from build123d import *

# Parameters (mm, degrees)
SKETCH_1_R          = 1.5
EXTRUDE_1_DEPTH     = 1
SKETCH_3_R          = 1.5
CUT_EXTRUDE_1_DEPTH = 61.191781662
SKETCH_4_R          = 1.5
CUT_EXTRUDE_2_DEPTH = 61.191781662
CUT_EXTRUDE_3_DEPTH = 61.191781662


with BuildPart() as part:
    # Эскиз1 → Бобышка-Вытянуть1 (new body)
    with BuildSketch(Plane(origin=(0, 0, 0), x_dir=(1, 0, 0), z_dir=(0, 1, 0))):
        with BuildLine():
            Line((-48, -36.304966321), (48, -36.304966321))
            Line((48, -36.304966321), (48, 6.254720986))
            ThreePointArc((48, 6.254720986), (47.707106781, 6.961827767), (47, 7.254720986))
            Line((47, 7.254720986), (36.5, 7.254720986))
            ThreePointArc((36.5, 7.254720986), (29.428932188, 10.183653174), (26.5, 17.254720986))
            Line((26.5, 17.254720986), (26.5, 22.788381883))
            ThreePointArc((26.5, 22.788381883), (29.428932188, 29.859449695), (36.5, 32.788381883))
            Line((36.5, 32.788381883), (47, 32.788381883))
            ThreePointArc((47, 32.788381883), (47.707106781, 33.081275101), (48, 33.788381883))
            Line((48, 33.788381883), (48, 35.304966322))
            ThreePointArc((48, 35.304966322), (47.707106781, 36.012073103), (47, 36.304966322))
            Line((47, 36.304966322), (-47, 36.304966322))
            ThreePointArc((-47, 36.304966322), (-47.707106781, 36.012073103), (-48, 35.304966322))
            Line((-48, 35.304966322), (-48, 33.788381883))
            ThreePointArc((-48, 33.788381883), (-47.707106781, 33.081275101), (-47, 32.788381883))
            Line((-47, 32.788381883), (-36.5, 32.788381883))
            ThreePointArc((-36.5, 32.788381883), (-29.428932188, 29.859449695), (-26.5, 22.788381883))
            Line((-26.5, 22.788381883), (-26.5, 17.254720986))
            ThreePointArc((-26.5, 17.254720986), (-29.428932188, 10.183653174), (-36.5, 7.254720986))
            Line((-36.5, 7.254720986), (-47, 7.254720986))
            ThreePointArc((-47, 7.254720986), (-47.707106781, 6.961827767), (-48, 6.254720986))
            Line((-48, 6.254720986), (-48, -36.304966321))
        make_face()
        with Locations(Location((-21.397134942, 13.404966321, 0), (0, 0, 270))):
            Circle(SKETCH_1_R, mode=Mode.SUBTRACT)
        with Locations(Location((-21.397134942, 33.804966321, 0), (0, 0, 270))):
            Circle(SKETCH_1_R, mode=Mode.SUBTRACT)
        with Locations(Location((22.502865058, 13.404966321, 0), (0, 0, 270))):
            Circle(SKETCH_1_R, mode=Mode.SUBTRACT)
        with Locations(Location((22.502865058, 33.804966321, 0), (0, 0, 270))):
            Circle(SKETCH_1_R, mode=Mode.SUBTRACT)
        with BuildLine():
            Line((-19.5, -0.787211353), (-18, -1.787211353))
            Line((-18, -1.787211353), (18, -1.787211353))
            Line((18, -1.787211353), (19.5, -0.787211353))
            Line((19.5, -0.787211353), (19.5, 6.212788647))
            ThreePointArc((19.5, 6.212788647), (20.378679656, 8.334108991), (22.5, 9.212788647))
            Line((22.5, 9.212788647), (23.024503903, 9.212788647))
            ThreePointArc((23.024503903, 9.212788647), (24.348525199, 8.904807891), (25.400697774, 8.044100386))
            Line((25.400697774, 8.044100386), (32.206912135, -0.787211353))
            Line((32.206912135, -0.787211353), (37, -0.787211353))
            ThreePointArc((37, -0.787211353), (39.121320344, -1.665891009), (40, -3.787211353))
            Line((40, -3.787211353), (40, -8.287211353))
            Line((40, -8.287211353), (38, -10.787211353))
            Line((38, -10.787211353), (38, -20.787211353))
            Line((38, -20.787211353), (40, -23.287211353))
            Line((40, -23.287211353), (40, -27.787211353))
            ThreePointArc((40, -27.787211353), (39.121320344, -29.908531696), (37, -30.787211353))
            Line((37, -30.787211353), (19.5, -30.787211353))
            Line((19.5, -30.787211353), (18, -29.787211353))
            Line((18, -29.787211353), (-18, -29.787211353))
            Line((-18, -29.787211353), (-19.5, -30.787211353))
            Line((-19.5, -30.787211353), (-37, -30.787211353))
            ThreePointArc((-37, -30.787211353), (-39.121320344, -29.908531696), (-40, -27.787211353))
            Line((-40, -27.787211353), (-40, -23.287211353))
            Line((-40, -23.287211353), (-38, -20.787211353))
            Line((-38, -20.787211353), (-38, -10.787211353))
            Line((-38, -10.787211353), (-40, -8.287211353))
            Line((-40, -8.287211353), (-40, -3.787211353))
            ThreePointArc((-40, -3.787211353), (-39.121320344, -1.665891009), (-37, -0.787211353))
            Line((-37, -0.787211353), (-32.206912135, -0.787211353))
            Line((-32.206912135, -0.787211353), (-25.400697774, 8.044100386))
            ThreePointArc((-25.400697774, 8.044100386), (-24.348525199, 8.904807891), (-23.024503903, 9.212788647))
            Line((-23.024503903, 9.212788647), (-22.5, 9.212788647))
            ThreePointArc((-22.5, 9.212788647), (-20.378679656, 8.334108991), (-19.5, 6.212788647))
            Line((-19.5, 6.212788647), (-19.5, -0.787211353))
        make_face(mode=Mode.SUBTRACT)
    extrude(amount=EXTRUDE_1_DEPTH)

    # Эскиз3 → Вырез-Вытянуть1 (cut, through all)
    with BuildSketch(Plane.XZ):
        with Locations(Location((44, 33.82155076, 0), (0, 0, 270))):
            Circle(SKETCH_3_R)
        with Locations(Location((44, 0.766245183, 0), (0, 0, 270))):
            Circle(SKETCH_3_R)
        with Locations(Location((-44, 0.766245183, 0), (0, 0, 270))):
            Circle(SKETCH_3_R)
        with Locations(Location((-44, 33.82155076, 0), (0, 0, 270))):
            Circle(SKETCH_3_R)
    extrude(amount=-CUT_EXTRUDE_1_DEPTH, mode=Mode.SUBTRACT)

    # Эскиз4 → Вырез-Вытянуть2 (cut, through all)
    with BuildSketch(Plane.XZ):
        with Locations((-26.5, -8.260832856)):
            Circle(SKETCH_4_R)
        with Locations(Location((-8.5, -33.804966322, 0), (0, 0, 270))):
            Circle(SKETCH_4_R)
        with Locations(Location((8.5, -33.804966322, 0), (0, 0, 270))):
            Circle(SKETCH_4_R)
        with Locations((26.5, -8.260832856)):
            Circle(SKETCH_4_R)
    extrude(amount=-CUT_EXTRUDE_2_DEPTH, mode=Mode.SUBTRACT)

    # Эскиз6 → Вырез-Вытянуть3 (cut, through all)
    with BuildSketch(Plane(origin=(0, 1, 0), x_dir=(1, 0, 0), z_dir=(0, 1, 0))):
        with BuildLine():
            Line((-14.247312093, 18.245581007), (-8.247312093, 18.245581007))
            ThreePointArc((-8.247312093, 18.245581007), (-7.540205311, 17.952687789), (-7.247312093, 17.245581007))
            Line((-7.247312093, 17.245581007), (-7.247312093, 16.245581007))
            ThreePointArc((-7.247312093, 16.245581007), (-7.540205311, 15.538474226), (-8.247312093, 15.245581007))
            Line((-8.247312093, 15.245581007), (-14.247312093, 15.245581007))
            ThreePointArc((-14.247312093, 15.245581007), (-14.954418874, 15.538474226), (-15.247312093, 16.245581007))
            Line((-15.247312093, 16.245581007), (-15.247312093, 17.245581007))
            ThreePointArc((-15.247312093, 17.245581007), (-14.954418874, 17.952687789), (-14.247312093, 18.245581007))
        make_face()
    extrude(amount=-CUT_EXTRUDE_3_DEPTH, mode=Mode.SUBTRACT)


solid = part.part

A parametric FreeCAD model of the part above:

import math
import FreeCAD as App
import Part
import Sketcher
from FreeCAD import Vector
Q = App.Units.Quantity

doc = App.newDocument("Part")
body = doc.addObject("PartDesign::Body", "Body")

# Sketch on XZ plane
sketch1 = doc.addObject("Sketcher::SketchObject", "Sketch")
body.addObject(sketch1)
sketch1.AttachmentSupport = (doc.XZ_Plane, [""])
sketch1.MapMode = "FlatFace"
sketch1.addGeometry(Part.LineSegment(Vector(-48, 36.3, 0), Vector(48, 36.3, 0)), False)
sketch1.addGeometry(Part.LineSegment(Vector(48, 36.3, 0), Vector(48, -6.3, 0)), False)
sketch1.addGeometry(Part.ArcOfCircle(Part.Circle(Vector(47, -6.3, 0), Vector(0, 0, 1), 1), math.radians(-90), math.radians(0)), False)
sketch1.addGeometry(Part.LineSegment(Vector(47, -7.3, 0), Vector(36.5, -7.3, 0)), False)
sketch1.addGeometry(Part.ArcOfCircle(Part.Circle(Vector(36.5, -17.3, 0), Vector(0, 0, 1), 10), math.radians(90), math.radians(180)), False)
sketch1.addGeometry(Part.LineSegment(Vector(26.5, -17.3, 0), Vector(26.5, -22.8, 0)), False)
sketch1.addGeometry(Part.ArcOfCircle(Part.Circle(Vector(36.5, -22.8, 0), Vector(0, 0, 1), 10), math.radians(180), math.radians(270)), False)
sketch1.addGeometry(Part.LineSegment(Vector(36.5, -32.8, 0), Vector(47, -32.8, 0)), False)
sketch1.addGeometry(Part.ArcOfCircle(Part.Circle(Vector(47, -33.8, 0), Vector(0, 0, 1), 1), math.radians(0), math.radians(90)), False)
sketch1.addGeometry(Part.LineSegment(Vector(48, -33.8, 0), Vector(48, -35.3, 0)), False)
sketch1.addGeometry(Part.ArcOfCircle(Part.Circle(Vector(47, -35.3, 0), Vector(0, 0, 1), 1), math.radians(-90), math.radians(0)), False)
sketch1.addGeometry(Part.LineSegment(Vector(47, -36.3, 0), Vector(-47, -36.3, 0)), False)
sketch1.addGeometry(Part.ArcOfCircle(Part.Circle(Vector(-47, -35.3, 0), Vector(0, 0, 1), 1), math.radians(-180), math.radians(-90)), False)
sketch1.addGeometry(Part.LineSegment(Vector(-48, -35.3, 0), Vector(-48, -33.8, 0)), False)
sketch1.addGeometry(Part.ArcOfCircle(Part.Circle(Vector(-47, -33.8, 0), Vector(0, 0, 1), 1), math.radians(90), math.radians(180)), False)
sketch1.addGeometry(Part.LineSegment(Vector(-47, -32.8, 0), Vector(-36.5, -32.8, 0)), False)
sketch1.addGeometry(Part.ArcOfCircle(Part.Circle(Vector(-36.5, -22.8, 0), Vector(0, 0, 1), 10), math.radians(-90), math.radians(0)), False)
sketch1.addGeometry(Part.LineSegment(Vector(-26.5, -22.8, 0), Vector(-26.5, -17.3, 0)), False)
sketch1.addGeometry(Part.ArcOfCircle(Part.Circle(Vector(-36.5, -17.3, 0), Vector(0, 0, 1), 10), math.radians(0), math.radians(90)), False)
sketch1.addGeometry(Part.LineSegment(Vector(-36.5, -7.3, 0), Vector(-47, -7.3, 0)), False)
sketch1.addGeometry(Part.ArcOfCircle(Part.Circle(Vector(-47, -6.3, 0), Vector(0, 0, 1), 1), math.radians(-180), math.radians(-90)), False)
sketch1.addGeometry(Part.LineSegment(Vector(-48, -6.3, 0), Vector(-48, 36.3, 0)), False)
sketch1.addGeometry(Part.LineSegment(Vector(-19.5, -6.2, 0), Vector(-19.5, 0.8, 0)), False)
sketch1.addGeometry(Part.LineSegment(Vector(-19.5, 0.8, 0), Vector(-18, 1.8, 0)), False)
sketch1.addGeometry(Part.LineSegment(Vector(-18, 1.8, 0), Vector(18, 1.8, 0)), False)
sketch1.addGeometry(Part.LineSegment(Vector(18, 1.8, 0), Vector(19.5, 0.8, 0)), False)
sketch1.addGeometry(Part.LineSegment(Vector(19.5, 0.8, 0), Vector(19.5, -6.2, 0)), False)
sketch1.addGeometry(Part.ArcOfCircle(Part.Circle(Vector(22.5, -6.2, 0), Vector(0, 0, 1), 3), math.radians(180), math.radians(270)), False)
sketch1.addGeometry(Part.LineSegment(Vector(22.5, -9.2, 0), Vector(23, -9.2, 0)), False)
sketch1.addGeometry(Part.ArcOfCircle(Part.Circle(Vector(23, -6.2, 0), Vector(0, 0, 1), 3), math.radians(-90), math.radians(-38)), False)
sketch1.addGeometry(Part.LineSegment(Vector(25.4, -8, 0), Vector(32.2, 0.8, 0)), False)
sketch1.addGeometry(Part.LineSegment(Vector(32.2, 0.8, 0), Vector(37, 0.8, 0)), False)
sketch1.addGeometry(Part.ArcOfCircle(Part.Circle(Vector(37, 3.8, 0), Vector(0, 0, 1), 3), math.radians(-90), math.radians(0)), False)
sketch1.addGeometry(Part.LineSegment(Vector(40, 3.8, 0), Vector(40, 8.3, 0)), False)
sketch1.addGeometry(Part.LineSegment(Vector(40, 8.3, 0), Vector(38, 10.8, 0)), False)
sketch1.addGeometry(Part.LineSegment(Vector(38, 10.8, 0), Vector(38, 20.8, 0)), False)
sketch1.addGeometry(Part.LineSegment(Vector(38, 20.8, 0), Vector(40, 23.3, 0)), False)
sketch1.addGeometry(Part.LineSegment(Vector(40, 23.3, 0), Vector(40, 27.8, 0)), False)
sketch1.addGeometry(Part.ArcOfCircle(Part.Circle(Vector(37, 27.8, 0), Vector(0, 0, 1), 3), math.radians(0), math.radians(90)), False)
sketch1.addGeometry(Part.LineSegment(Vector(37, 30.8, 0), Vector(19.5, 30.8, 0)), False)
sketch1.addGeometry(Part.LineSegment(Vector(19.5, 30.8, 0), Vector(18, 29.8, 0)), False)
sketch1.addGeometry(Part.LineSegment(Vector(18, 29.8, 0), Vector(-18, 29.8, 0)), False)
sketch1.addGeometry(Part.LineSegment(Vector(-18, 29.8, 0), Vector(-19.5, 30.8, 0)), False)
sketch1.addGeometry(Part.LineSegment(Vector(-19.5, 30.8, 0), Vector(-37, 30.8, 0)), False)
sketch1.addGeometry(Part.ArcOfCircle(Part.Circle(Vector(-37, 27.8, 0), Vector(0, 0, 1), 3), math.radians(90), math.radians(180)), False)
sketch1.addGeometry(Part.LineSegment(Vector(-40, 27.8, 0), Vector(-40, 23.3, 0)), False)
sketch1.addGeometry(Part.LineSegment(Vector(-40, 23.3, 0), Vector(-38, 20.8, 0)), False)
sketch1.addGeometry(Part.LineSegment(Vector(-38, 20.8, 0), Vector(-38, 10.8, 0)), False)
sketch1.addGeometry(Part.LineSegment(Vector(-38, 10.8, 0), Vector(-40, 8.3, 0)), False)
sketch1.addGeometry(Part.LineSegment(Vector(-40, 8.3, 0), Vector(-40, 3.8, 0)), False)
sketch1.addGeometry(Part.ArcOfCircle(Part.Circle(Vector(-37, 3.8, 0), Vector(0, 0, 1), 3), math.radians(180), math.radians(270)), False)
sketch1.addGeometry(Part.LineSegment(Vector(-37, 0.8, 0), Vector(-32.2, 0.8, 0)), False)
sketch1.addGeometry(Part.LineSegment(Vector(-32.2, 0.8, 0), Vector(-25.4, -8, 0)), False)
sketch1.addGeometry(Part.ArcOfCircle(Part.Circle(Vector(-23, -6.2, 0), Vector(0, 0, 1), 3), math.radians(-142), math.radians(-90)), False)
sketch1.addGeometry(Part.LineSegment(Vector(-23, -9.2, 0), Vector(-22.5, -9.2, 0)), False)
sketch1.addGeometry(Part.ArcOfCircle(Part.Circle(Vector(-22.5, -6.2, 0), Vector(0, 0, 1), 3), math.radians(-90), math.radians(0)), False)
sketch1.addGeometry(Part.Circle(Vector(-21.4, -13.4, 0), Vector(0, 0, 1), 1.5), False)
sketch1.addGeometry(Part.Circle(Vector(-21.4, -33.8, 0), Vector(0, 0, 1), 1.5), False)
sketch1.addGeometry(Part.Circle(Vector(22.5, -13.4, 0), Vector(0, 0, 1), 1.5), False)
sketch1.addGeometry(Part.Circle(Vector(22.5, -33.8, 0), Vector(0, 0, 1), 1.5), False)
sketch1.addConstraint(Sketcher.Constraint("Coincident", 0, 2, 1, 1))
sketch1.addConstraint(Sketcher.Constraint("Tangent", 1, 2, 2, 2))
sketch1.addConstraint(Sketcher.Constraint("Tangent", 2, 1, 3, 1))
sketch1.addConstraint(Sketcher.Constraint("Tangent", 3, 2, 4, 1))
sketch1.addConstraint(Sketcher.Constraint("Tangent", 4, 2, 5, 1))
sketch1.addConstraint(Sketcher.Constraint("Tangent", 5, 2, 6, 1))
sketch1.addConstraint(Sketcher.Constraint("Tangent", 6, 2, 7, 1))
sketch1.addConstraint(Sketcher.Constraint("Tangent", 7, 2, 8, 2))
sketch1.addConstraint(Sketcher.Constraint("Tangent", 8, 1, 9, 1))
sketch1.addConstraint(Sketcher.Constraint("Tangent", 9, 2, 10, 2))
sketch1.addConstraint(Sketcher.Constraint("Tangent", 10, 1, 11, 1))
sketch1.addConstraint(Sketcher.Constraint("Tangent", 11, 2, 12, 2))
sketch1.addConstraint(Sketcher.Constraint("Tangent", 12, 1, 13, 1))
sketch1.addConstraint(Sketcher.Constraint("Tangent", 13, 2, 14, 2))
sketch1.addConstraint(Sketcher.Constraint("Tangent", 14, 1, 15, 1))
sketch1.addConstraint(Sketcher.Constraint("Tangent", 15, 2, 16, 1))
sketch1.addConstraint(Sketcher.Constraint("Tangent", 16, 2, 17, 1))
sketch1.addConstraint(Sketcher.Constraint("Tangent", 17, 2, 18, 1))
sketch1.addConstraint(Sketcher.Constraint("Tangent", 18, 2, 19, 1))
sketch1.addConstraint(Sketcher.Constraint("Tangent", 19, 2, 20, 2))
sketch1.addConstraint(Sketcher.Constraint("Tangent", 20, 1, 21, 1))
sketch1.addConstraint(Sketcher.Constraint("Coincident", 21, 2, 0, 1))
sketch1.addConstraint(Sketcher.Constraint("Coincident", 22, 2, 23, 1))
sketch1.addConstraint(Sketcher.Constraint("Coincident", 23, 2, 24, 1))
sketch1.addConstraint(Sketcher.Constraint("Coincident", 24, 2, 25, 1))
sketch1.addConstraint(Sketcher.Constraint("Coincident", 25, 2, 26, 1))
sketch1.addConstraint(Sketcher.Constraint("Tangent", 26, 2, 27, 1))
sketch1.addConstraint(Sketcher.Constraint("Tangent", 27, 2, 28, 1))
sketch1.addConstraint(Sketcher.Constraint("Tangent", 28, 2, 29, 1))
sketch1.addConstraint(Sketcher.Constraint("Tangent", 29, 2, 30, 1))
sketch1.addConstraint(Sketcher.Constraint("Coincident", 30, 2, 31, 1))
sketch1.addConstraint(Sketcher.Constraint("Tangent", 31, 2, 32, 1))
sketch1.addConstraint(Sketcher.Constraint("Tangent", 32, 2, 33, 1))
sketch1.addConstraint(Sketcher.Constraint("Coincident", 33, 2, 34, 1))
sketch1.addConstraint(Sketcher.Constraint("Coincident", 34, 2, 35, 1))
sketch1.addConstraint(Sketcher.Constraint("Coincident", 35, 2, 36, 1))
sketch1.addConstraint(Sketcher.Constraint("Coincident", 36, 2, 37, 1))
sketch1.addConstraint(Sketcher.Constraint("Tangent", 37, 2, 38, 1))
sketch1.addConstraint(Sketcher.Constraint("Tangent", 38, 2, 39, 1))
sketch1.addConstraint(Sketcher.Constraint("Coincident", 39, 2, 40, 1))
sketch1.addConstraint(Sketcher.Constraint("Coincident", 40, 2, 41, 1))
sketch1.addConstraint(Sketcher.Constraint("Coincident", 41, 2, 42, 1))
sketch1.addConstraint(Sketcher.Constraint("Coincident", 42, 2, 43, 1))
sketch1.addConstraint(Sketcher.Constraint("Tangent", 43, 2, 44, 1))
sketch1.addConstraint(Sketcher.Constraint("Tangent", 44, 2, 45, 1))
sketch1.addConstraint(Sketcher.Constraint("Coincident", 45, 2, 46, 1))
sketch1.addConstraint(Sketcher.Constraint("Coincident", 46, 2, 47, 1))
sketch1.addConstraint(Sketcher.Constraint("Coincident", 47, 2, 48, 1))
sketch1.addConstraint(Sketcher.Constraint("Coincident", 48, 2, 49, 1))
sketch1.addConstraint(Sketcher.Constraint("Tangent", 49, 2, 50, 1))
sketch1.addConstraint(Sketcher.Constraint("Tangent", 50, 2, 51, 1))
sketch1.addConstraint(Sketcher.Constraint("Coincident", 51, 2, 52, 1))
sketch1.addConstraint(Sketcher.Constraint("Tangent", 52, 2, 53, 1))
sketch1.addConstraint(Sketcher.Constraint("Tangent", 53, 2, 54, 1))
sketch1.addConstraint(Sketcher.Constraint("Tangent", 54, 2, 55, 1))
sketch1.addConstraint(Sketcher.Constraint("Tangent", 55, 2, 22, 1))
sketch1.addConstraint(Sketcher.Constraint("Horizontal", 0))
sketch1.addConstraint(Sketcher.Constraint("Vertical", 1))
sketch1.addConstraint(Sketcher.Constraint("Horizontal", 3))
sketch1.addConstraint(Sketcher.Constraint("Vertical", 5))
sketch1.addConstraint(Sketcher.Constraint("Horizontal", 7))
sketch1.addConstraint(Sketcher.Constraint("Vertical", 9))
sketch1.addConstraint(Sketcher.Constraint("Horizontal", 11))
sketch1.addConstraint(Sketcher.Constraint("Vertical", 13))
sketch1.addConstraint(Sketcher.Constraint("Horizontal", 15))
sketch1.addConstraint(Sketcher.Constraint("Vertical", 17))
sketch1.addConstraint(Sketcher.Constraint("Horizontal", 19))
sketch1.addConstraint(Sketcher.Constraint("Vertical", 21))
sketch1.addConstraint(Sketcher.Constraint("Vertical", 22))
sketch1.addConstraint(Sketcher.Constraint("Horizontal", 24))
sketch1.addConstraint(Sketcher.Constraint("Vertical", 26))
sketch1.addConstraint(Sketcher.Constraint("Horizontal", 28))
sketch1.addConstraint(Sketcher.Constraint("Horizontal", 31))
sketch1.addConstraint(Sketcher.Constraint("Vertical", 33))
sketch1.addConstraint(Sketcher.Constraint("Vertical", 35))
sketch1.addConstraint(Sketcher.Constraint("Vertical", 37))
sketch1.addConstraint(Sketcher.Constraint("Horizontal", 39))
sketch1.addConstraint(Sketcher.Constraint("Horizontal", 41))
sketch1.addConstraint(Sketcher.Constraint("Horizontal", 43))
sketch1.addConstraint(Sketcher.Constraint("Vertical", 45))
sketch1.addConstraint(Sketcher.Constraint("Vertical", 47))
sketch1.addConstraint(Sketcher.Constraint("Vertical", 49))
sketch1.addConstraint(Sketcher.Constraint("Horizontal", 51))
sketch1.addConstraint(Sketcher.Constraint("Horizontal", 54))
sketch1.addConstraint(Sketcher.Constraint("Equal", 4, 6))
sketch1.addConstraint(Sketcher.Constraint("Equal", 2, 8))
sketch1.addConstraint(Sketcher.Constraint("Equal", 8, 10))
sketch1.addConstraint(Sketcher.Constraint("Equal", 10, 12))
sketch1.addConstraint(Sketcher.Constraint("Equal", 12, 14))
sketch1.addConstraint(Sketcher.Constraint("Equal", 6, 16))
sketch1.addConstraint(Sketcher.Constraint("Equal", 16, 18))
sketch1.addConstraint(Sketcher.Constraint("Equal", 14, 20))
sketch1.addConstraint(Sketcher.Constraint("Equal", 27, 29))
sketch1.addConstraint(Sketcher.Constraint("Equal", 29, 32))
sketch1.addConstraint(Sketcher.Constraint("Equal", 32, 38))
sketch1.addConstraint(Sketcher.Constraint("Equal", 38, 44))
sketch1.addConstraint(Sketcher.Constraint("Equal", 44, 50))
sketch1.addConstraint(Sketcher.Constraint("Equal", 50, 53))
sketch1.addConstraint(Sketcher.Constraint("Equal", 53, 55))
sketch1.addConstraint(Sketcher.Constraint("Equal", 56, 57))
sketch1.addConstraint(Sketcher.Constraint("Equal", 57, 58))
sketch1.addConstraint(Sketcher.Constraint("Equal", 58, 59))
sketch1.addConstraint(Sketcher.Constraint("Symmetric", 8, 3, 14, 3, -2))
sketch1.addConstraint(Sketcher.Constraint("Symmetric", 4, 3, 18, 3, -2))
sketch1.addConstraint(Sketcher.Constraint("Symmetric", 38, 3, 44, 3, -2))
sketch1.addConstraint(Sketcher.Constraint("Symmetric", 32, 3, 50, 3, -2))
sketch1.addConstraint(Sketcher.Constraint("Symmetric", 29, 3, 53, 3, -2))
sketch1.addConstraint(Sketcher.Constraint("Symmetric", 22, 2, 25, 2, -2))
sketch1.addConstraint(Sketcher.Constraint("Symmetric", 35, 2, 46, 2, -2))
sketch1.addConstraint(Sketcher.Constraint("Parallel", 23, 40))
sketch1.addConstraint(Sketcher.Constraint("Parallel", 25, 42))
sketch1.addConstraint(Sketcher.Constraint("Parallel", 34, 46))
sketch1.addConstraint(Sketcher.Constraint("Parallel", 36, 48))
sketch1.addConstraint(Sketcher.Constraint("Horizontal", 56, 3, 58, 3))
sketch1.addConstraint(Sketcher.Constraint("Horizontal", 57, 3, 59, 3))
sketch1.addConstraint(Sketcher.Constraint("Horizontal", 25, 2, 30, 2))
sketch1.addConstraint(Sketcher.Constraint("Horizontal", 36, 2, 45, 2))
sketch1.addConstraint(Sketcher.Constraint("Horizontal", 34, 2, 47, 2))
sketch1.addConstraint(Sketcher.Constraint("Horizontal", 29, 2, 52, 2))
sketch1.addConstraint(Sketcher.Constraint("Vertical", 2, 3, 8, 3))
sketch1.addConstraint(Sketcher.Constraint("Vertical", 14, 3, 20, 3))
sketch1.addConstraint(Sketcher.Constraint("Vertical", 32, 3, 38, 3))
sketch1.addConstraint(Sketcher.Constraint("Vertical", 56, 3, 57, 3))
sketch1.addConstraint(Sketcher.Constraint("Vertical", 58, 3, 59, 3))
sketch1.addConstraint(Sketcher.Constraint("Vertical", 26, 2, 39, 2))
sketch1.addConstraint(Sketcher.Constraint("Vertical", 24, 2, 40, 2))
sketch1.addConstraint(Sketcher.Constraint("Vertical", 23, 2, 41, 2))
sketch1.addConstraint(Sketcher.Constraint("Vertical", 22, 2, 42, 2))
sketch1.addConstraint(Sketcher.Constraint("Equal", 33, 37))
sketch1.addConstraint(Sketcher.Constraint("Diameter", 56, Q("3 mm")))
sketch1.addConstraint(Sketcher.Constraint("Radius", 2, Q("1 mm")))
sketch1.addConstraint(Sketcher.Constraint("Radius", 4, Q("10 mm")))
sketch1.addConstraint(Sketcher.Constraint("Radius", 27, Q("3 mm")))
sketch1.addConstraint(Sketcher.Constraint("DistanceX", 0, 1, 0, 2, Q("96 mm")))
sketch1.addConstraint(Sketcher.Constraint("DistanceX", 24, 1, 24, 2, Q("36 mm")))
sketch1.addConstraint(Sketcher.Constraint("DistanceY", 22, 1, 22, 2, Q("7 mm")))
sketch1.addConstraint(Sketcher.Constraint("DistanceY", 35, 1, 35, 2, Q("10 mm")))
sketch1.addConstraint(Sketcher.Constraint("DistanceX", 3, 2, 3, 1, Q("10.5 mm")))
sketch1.addConstraint(Sketcher.Constraint("DistanceX", 39, 2, 39, 1, Q("17.5 mm")))
sketch1.addConstraint(Sketcher.Constraint("DistanceY", 33, 1, 33, 2, Q("4.5 mm")))
sketch1.addConstraint(Sketcher.Constraint("DistanceX", -1, 1, 32, 3, Q("37 mm")))
sketch1.addConstraint(Sketcher.Constraint("DistanceX", -1, 1, 34, 2, Q("38 mm")))
sketch1.addConstraint(Sketcher.Constraint("DistanceY", 5, 2, 5, 1, Q("5.533661 mm")))
sketch1.addConstraint(Sketcher.Constraint("DistanceY", 29, 2, -1, 1, Q("8.0441 mm")))
sketch1.addConstraint(Sketcher.Constraint("DistanceX", 28, 1, 28, 2, Q("0.524504 mm")))
sketch1.addConstraint(Sketcher.Constraint("DistanceX", 31, 1, 31, 2, Q("4.793088 mm")))
sketch1.addConstraint(Sketcher.Constraint("DistanceY", 1, 2, 1, 1, Q("42.559687 mm")))
sketch1.addConstraint(Sketcher.Constraint("DistanceY", 9, 2, 9, 1, Q("1.516584 mm")))
sketch1.addConstraint(Sketcher.Constraint("DistanceY", 2, 3, -1, 1, Q("6.254721 mm")))
sketch1.addConstraint(Sketcher.Constraint("DistanceY", -1, 1, 38, 3, Q("27.787211 mm")))
sketch1.addConstraint(Sketcher.Constraint("DistanceY", -1, 1, 23, 2, Q("1.787211 mm")))
sketch1.addConstraint(Sketcher.Constraint("DistanceX", 56, 3, -1, 1, Q("21.397135 mm")))
sketch1.addConstraint(Sketcher.Constraint("DistanceY", 56, 3, -1, 1, Q("13.404966 mm")))
sketch1.addConstraint(Sketcher.Constraint("DistanceY", 57, 3, -1, 1, Q("33.804966 mm")))
sketch1.addConstraint(Sketcher.Constraint("DistanceX", -1, 1, 58, 3, Q("22.502865 mm")))
pad1 = doc.addObject("PartDesign::Pad", "Pad")
body.addObject(pad1)
pad1.Profile = sketch1
pad1.Length = 1
pad1.Reversed = True

# Sketch on XZ plane
sketch2 = doc.addObject("Sketcher::SketchObject", "Sketch001")
body.addObject(sketch2)
sketch2.AttachmentSupport = (doc.XZ_Plane, [""])
sketch2.MapMode = "FlatFace"
sketch2.addGeometry(Part.Circle(Vector(44, 33.8, 0), Vector(0, 0, 1), 1.5), False)
sketch2.addGeometry(Part.Circle(Vector(44, 0.8, 0), Vector(0, 0, 1), 1.5), False)
sketch2.addGeometry(Part.Circle(Vector(-44, 0.8, 0), Vector(0, 0, 1), 1.5), False)
sketch2.addGeometry(Part.Circle(Vector(-44, 33.8, 0), Vector(0, 0, 1), 1.5), False)
sketch2.addConstraint(Sketcher.Constraint("Equal", 0, 1))
sketch2.addConstraint(Sketcher.Constraint("Equal", 1, 2))
sketch2.addConstraint(Sketcher.Constraint("Equal", 2, 3))
sketch2.addConstraint(Sketcher.Constraint("Symmetric", 1, 3, 2, 3, -2))
sketch2.addConstraint(Sketcher.Constraint("Symmetric", 0, 3, 3, 3, -2))
sketch2.addConstraint(Sketcher.Constraint("Vertical", 0, 3, 1, 3))
sketch2.addConstraint(Sketcher.Constraint("Diameter", 0, Q("3 mm")))
sketch2.addConstraint(Sketcher.Constraint("DistanceX", -1, 1, 0, 3, Q("44 mm")))
sketch2.addConstraint(Sketcher.Constraint("DistanceY", -1, 1, 0, 3, Q("33.821551 mm")))
sketch2.addConstraint(Sketcher.Constraint("DistanceY", -1, 1, 1, 3, Q("0.766245 mm")))
pocket1 = doc.addObject("PartDesign::Pocket", "Pocket")
body.addObject(pocket1)
pocket1.Profile = sketch2
pocket1.Type = "ThroughAll"

# Sketch on XZ plane
sketch3 = doc.addObject("Sketcher::SketchObject", "Sketch002")
body.addObject(sketch3)
sketch3.AttachmentSupport = (doc.XZ_Plane, [""])
sketch3.MapMode = "FlatFace"
sketch3.addGeometry(Part.Circle(Vector(-26.5, -8.3, 0), Vector(0, 0, 1), 1.5), False)
sketch3.addGeometry(Part.Circle(Vector(-8.5, -33.8, 0), Vector(0, 0, 1), 1.5), False)
sketch3.addGeometry(Part.Circle(Vector(8.5, -33.8, 0), Vector(0, 0, 1), 1.5), False)
sketch3.addGeometry(Part.Circle(Vector(26.5, -8.3, 0), Vector(0, 0, 1), 1.5), False)
sketch3.addConstraint(Sketcher.Constraint("Equal", 0, 1))
sketch3.addConstraint(Sketcher.Constraint("Equal", 1, 2))
sketch3.addConstraint(Sketcher.Constraint("Equal", 2, 3))
sketch3.addConstraint(Sketcher.Constraint("Symmetric", 1, 3, 2, 3, -2))
sketch3.addConstraint(Sketcher.Constraint("Symmetric", 0, 3, 3, 3, -2))
sketch3.addConstraint(Sketcher.Constraint("Diameter", 0, Q("3 mm")))
sketch3.addConstraint(Sketcher.Constraint("DistanceX", 0, 3, 1, 3, Q("18 mm")))
sketch3.addConstraint(Sketcher.Constraint("DistanceX", 1, 3, 2, 3, Q("17 mm")))
sketch3.addConstraint(Sketcher.Constraint("DistanceY", 0, 3, -1, 1, Q("8.260833 mm")))
sketch3.addConstraint(Sketcher.Constraint("DistanceY", 1, 3, -1, 1, Q("33.804966 mm")))
pocket2 = doc.addObject("PartDesign::Pocket", "Pocket001")
body.addObject(pocket2)
pocket2.Profile = sketch3
pocket2.Type = "ThroughAll"

# Sketch on XZ plane
sketch4 = doc.addObject("Sketcher::SketchObject", "Sketch003")
body.addObject(sketch4)
sketch4.AttachmentSupport = (doc.XZ_Plane, [""])
sketch4.MapMode = "FlatFace"
sketch4.AttachmentOffset = App.Placement(Vector(0, 0, -1), App.Rotation())
sketch4.addGeometry(Part.LineSegment(Vector(-8.2, -18.2, 0), Vector(-14.2, -18.2, 0)), False)
sketch4.addGeometry(Part.ArcOfCircle(Part.Circle(Vector(-14.2, -17.2, 0), Vector(0, 0, 1), 1), math.radians(180), math.radians(270)), False)
sketch4.addGeometry(Part.LineSegment(Vector(-15.2, -17.2, 0), Vector(-15.2, -16.2, 0)), False)
sketch4.addGeometry(Part.ArcOfCircle(Part.Circle(Vector(-14.2, -16.2, 0), Vector(0, 0, 1), 1), math.radians(90), math.radians(180)), False)
sketch4.addGeometry(Part.LineSegment(Vector(-14.2, -15.2, 0), Vector(-8.2, -15.2, 0)), False)
sketch4.addGeometry(Part.ArcOfCircle(Part.Circle(Vector(-8.2, -16.2, 0), Vector(0, 0, 1), 1), math.radians(0), math.radians(90)), False)
sketch4.addGeometry(Part.LineSegment(Vector(-7.2, -16.2, 0), Vector(-7.2, -17.2, 0)), False)
sketch4.addGeometry(Part.ArcOfCircle(Part.Circle(Vector(-8.2, -17.2, 0), Vector(0, 0, 1), 1), math.radians(-90), math.radians(0)), False)
sketch4.addConstraint(Sketcher.Constraint("Tangent", 0, 2, 1, 2))
sketch4.addConstraint(Sketcher.Constraint("Tangent", 1, 1, 2, 1))
sketch4.addConstraint(Sketcher.Constraint("Tangent", 2, 2, 3, 2))
sketch4.addConstraint(Sketcher.Constraint("Tangent", 3, 1, 4, 1))
sketch4.addConstraint(Sketcher.Constraint("Tangent", 4, 2, 5, 2))
sketch4.addConstraint(Sketcher.Constraint("Tangent", 5, 1, 6, 1))
sketch4.addConstraint(Sketcher.Constraint("Tangent", 6, 2, 7, 2))
sketch4.addConstraint(Sketcher.Constraint("Tangent", 7, 1, 0, 1))
sketch4.addConstraint(Sketcher.Constraint("Horizontal", 0))
sketch4.addConstraint(Sketcher.Constraint("Vertical", 2))
sketch4.addConstraint(Sketcher.Constraint("Horizontal", 4))
sketch4.addConstraint(Sketcher.Constraint("Vertical", 6))
sketch4.addConstraint(Sketcher.Constraint("Equal", 1, 3))
sketch4.addConstraint(Sketcher.Constraint("Equal", 3, 5))
sketch4.addConstraint(Sketcher.Constraint("Equal", 5, 7))
sketch4.addConstraint(Sketcher.Constraint("Radius", 1, Q("1 mm")))
sketch4.addConstraint(Sketcher.Constraint("DistanceX", 0, 2, 0, 1, Q("6 mm")))
sketch4.addConstraint(Sketcher.Constraint("DistanceY", 2, 1, 2, 2, Q("1 mm")))
sketch4.addConstraint(Sketcher.Constraint("DistanceY", 1, 3, -1, 1, Q("17.245581 mm")))
sketch4.addConstraint(Sketcher.Constraint("DistanceX", 1, 3, -1, 1, Q("14.247312 mm")))
pocket3 = doc.addObject("PartDesign::Pocket", "Pocket002")
body.addObject(pocket3)
pocket3.Profile = sketch4
pocket3.Type = "ThroughAll"
pocket3.Reversed = True

doc.recompute()
